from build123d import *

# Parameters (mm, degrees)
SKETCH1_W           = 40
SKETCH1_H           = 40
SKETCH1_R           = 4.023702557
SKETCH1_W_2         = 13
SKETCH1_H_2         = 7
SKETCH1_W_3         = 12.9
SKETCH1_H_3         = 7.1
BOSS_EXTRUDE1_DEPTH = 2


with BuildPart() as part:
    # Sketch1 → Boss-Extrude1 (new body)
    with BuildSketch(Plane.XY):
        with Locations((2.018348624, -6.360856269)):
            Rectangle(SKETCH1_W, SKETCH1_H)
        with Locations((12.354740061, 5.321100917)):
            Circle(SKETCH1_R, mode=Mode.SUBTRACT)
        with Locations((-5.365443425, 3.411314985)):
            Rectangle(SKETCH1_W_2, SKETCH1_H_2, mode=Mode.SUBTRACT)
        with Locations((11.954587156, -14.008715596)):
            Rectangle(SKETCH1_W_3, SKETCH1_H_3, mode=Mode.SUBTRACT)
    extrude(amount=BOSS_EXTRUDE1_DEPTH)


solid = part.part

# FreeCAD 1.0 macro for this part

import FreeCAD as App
import Part
import Sketcher


def add_polygon(sketch, points):
    """Adds a closed chain of lines whose ends are joined by coincident constraints."""
    first, n = sketch.GeometryCount, len(points)
    for a, b in zip(points, points[1:] + points[:1]):
        sketch.addGeometry(Part.LineSegment(App.Vector(*a, 0), App.Vector(*b, 0)), False)
    for i in range(n):
        sketch.addConstraint(Sketcher.Constraint("Coincident", first + i, 2, first + (i + 1) % n, 1))

doc = App.newDocument("Part")
body = doc.addObject("PartDesign::Body", "Body")

sketch1 = body.newObject("Sketcher::SketchObject", "Sketch")
sketch1.AttachmentSupport = (doc.getObject("XY_Plane"), [""])
sketch1.MapMode = "FlatFace"
add_polygon(sketch1, [(-17.981651, 13.639144), (-17.981651, -26.360856), (22.018349, -26.360856), (22.018349, 13.639144)])
add_polygon(sketch1, [(18.404587, -17.558716), (5.504587, -17.558716), (5.504587, -10.458716), (18.404587, -10.458716)])
add_polygon(sketch1, [(1.134557, -0.088685), (-11.865443, -0.088685), (-11.865443, 6.911315), (1.134557, 6.911315)])
sketch1.addGeometry(Part.Circle(App.Vector(12.35474, 5.321101, 0), App.Vector(0, 0, 1), 4.023703), False)
sketch1.addConstraint([
    Sketcher.Constraint("Vertical", 0),
    Sketcher.Constraint("Horizontal", 1),
    Sketcher.Constraint("Vertical", 2),
    Sketcher.Constraint("Horizontal", 3),
    Sketcher.Constraint("Horizontal", 4),
    Sketcher.Constraint("Vertical", 5),
    Sketcher.Constraint("Horizontal", 6),
    Sketcher.Constraint("Vertical", 7),
    Sketcher.Constraint("Horizontal", 8),
    Sketcher.Constraint("Vertical", 9),
    Sketcher.Constraint("Horizontal", 10),
    Sketcher.Constraint("Vertical", 11),
    Sketcher.Constraint("Equal", 3, 0),
    Sketcher.Constraint("DistanceX", 1, 1, 1, 2, 40.0),
    Sketcher.Constraint("DistanceX", 8, 2, 8, 1, 13.0),
    Sketcher.Constraint("DistanceY", 9, 1, 9, 2, 7.0),
    Sketcher.Constraint("DistanceX", 4, 2, 4, 1, 12.9),
    Sketcher.Constraint("DistanceY", 5, 1, 5, 2, 7.1),
    Sketcher.Constraint("Diameter", 12, 8.047405),
    Sketcher.Constraint("DistanceY", -1, 1, 12, 3, 5.321101),
    Sketcher.Constraint("DistanceX", -1, 1, 12, 3, 12.35474),
    Sketcher.Constraint("DistanceX", 0, 2, -1, 1, 17.981651),
    Sketcher.Constraint("DistanceX", 4, 2, 1, 2, 16.513761),
    Sketcher.Constraint("DistanceY", 1, 2, 4, 2, 8.802141),
    Sketcher.Constraint("DistanceY", 8, 2, 3, 2, 13.727829),
    Sketcher.Constraint("DistanceX", 8, 2, 5, 2, 17.370031),
    Sketcher.Constraint("DistanceY", 0, 2, -1, 1, 26.360856),
])
pad1 = body.newObject("PartDesign::Pad", "Pad")
pad1.Profile = sketch1
pad1.Length = 2

doc.recompute()
